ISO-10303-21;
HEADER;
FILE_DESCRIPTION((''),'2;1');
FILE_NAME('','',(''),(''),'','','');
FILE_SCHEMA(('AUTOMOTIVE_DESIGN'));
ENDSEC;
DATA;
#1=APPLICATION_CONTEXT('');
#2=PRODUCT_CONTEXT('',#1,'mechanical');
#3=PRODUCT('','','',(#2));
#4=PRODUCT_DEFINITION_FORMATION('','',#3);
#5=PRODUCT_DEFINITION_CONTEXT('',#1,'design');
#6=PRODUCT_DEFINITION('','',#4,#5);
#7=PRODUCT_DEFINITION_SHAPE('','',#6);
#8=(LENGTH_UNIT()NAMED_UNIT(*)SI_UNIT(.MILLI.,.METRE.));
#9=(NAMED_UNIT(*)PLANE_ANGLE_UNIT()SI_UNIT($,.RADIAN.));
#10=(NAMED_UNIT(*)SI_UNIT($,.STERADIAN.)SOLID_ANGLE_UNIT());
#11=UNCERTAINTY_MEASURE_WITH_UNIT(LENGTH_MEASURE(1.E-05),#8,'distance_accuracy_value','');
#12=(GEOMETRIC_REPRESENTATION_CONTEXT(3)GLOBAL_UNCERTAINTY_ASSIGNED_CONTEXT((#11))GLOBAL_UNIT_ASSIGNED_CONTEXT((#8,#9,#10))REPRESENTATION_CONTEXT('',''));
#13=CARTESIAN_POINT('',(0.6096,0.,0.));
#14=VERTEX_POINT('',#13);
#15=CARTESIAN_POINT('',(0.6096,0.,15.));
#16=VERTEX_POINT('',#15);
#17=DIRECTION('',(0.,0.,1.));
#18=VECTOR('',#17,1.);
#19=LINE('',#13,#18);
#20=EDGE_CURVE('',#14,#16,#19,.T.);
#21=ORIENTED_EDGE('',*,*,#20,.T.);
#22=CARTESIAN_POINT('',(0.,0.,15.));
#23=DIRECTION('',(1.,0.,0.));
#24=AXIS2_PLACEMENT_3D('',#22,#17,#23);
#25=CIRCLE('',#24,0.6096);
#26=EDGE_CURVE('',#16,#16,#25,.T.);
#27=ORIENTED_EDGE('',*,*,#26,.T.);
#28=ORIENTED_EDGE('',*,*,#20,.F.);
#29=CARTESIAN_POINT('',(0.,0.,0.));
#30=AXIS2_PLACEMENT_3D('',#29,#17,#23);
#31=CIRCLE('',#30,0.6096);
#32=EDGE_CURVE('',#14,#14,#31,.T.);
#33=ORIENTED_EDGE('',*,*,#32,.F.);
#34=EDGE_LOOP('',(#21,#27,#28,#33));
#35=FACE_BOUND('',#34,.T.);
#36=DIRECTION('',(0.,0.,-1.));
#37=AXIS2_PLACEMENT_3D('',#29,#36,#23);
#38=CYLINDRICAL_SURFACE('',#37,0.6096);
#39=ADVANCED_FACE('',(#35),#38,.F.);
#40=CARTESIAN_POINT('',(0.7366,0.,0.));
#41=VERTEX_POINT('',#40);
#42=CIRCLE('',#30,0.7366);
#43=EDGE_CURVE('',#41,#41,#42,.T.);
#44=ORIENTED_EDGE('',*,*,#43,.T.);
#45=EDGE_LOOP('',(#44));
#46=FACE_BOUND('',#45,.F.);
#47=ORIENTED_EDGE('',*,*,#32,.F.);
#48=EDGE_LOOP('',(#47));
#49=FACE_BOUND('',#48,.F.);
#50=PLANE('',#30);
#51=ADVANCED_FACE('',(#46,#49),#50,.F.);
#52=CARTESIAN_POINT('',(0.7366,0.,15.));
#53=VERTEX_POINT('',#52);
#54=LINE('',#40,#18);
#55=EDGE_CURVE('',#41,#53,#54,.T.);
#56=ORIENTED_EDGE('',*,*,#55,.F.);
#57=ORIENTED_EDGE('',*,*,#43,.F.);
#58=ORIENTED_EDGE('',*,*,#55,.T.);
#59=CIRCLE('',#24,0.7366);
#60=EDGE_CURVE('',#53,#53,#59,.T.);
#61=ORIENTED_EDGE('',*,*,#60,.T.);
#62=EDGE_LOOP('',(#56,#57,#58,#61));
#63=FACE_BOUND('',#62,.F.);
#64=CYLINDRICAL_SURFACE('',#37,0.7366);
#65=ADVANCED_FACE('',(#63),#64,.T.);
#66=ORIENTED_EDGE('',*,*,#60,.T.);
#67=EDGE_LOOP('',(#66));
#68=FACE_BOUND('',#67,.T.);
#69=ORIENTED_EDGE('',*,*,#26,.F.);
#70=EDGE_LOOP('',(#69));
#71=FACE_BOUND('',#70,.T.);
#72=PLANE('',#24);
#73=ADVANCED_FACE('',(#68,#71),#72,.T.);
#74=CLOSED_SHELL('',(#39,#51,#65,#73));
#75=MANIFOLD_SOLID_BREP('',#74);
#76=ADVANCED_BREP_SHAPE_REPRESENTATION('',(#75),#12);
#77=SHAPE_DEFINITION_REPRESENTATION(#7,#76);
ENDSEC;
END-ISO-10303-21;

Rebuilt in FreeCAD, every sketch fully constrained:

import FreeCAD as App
import Part
import Sketcher

V = App.Vector
Q = App.Units.Quantity

doc = App.newDocument("Part")
body = doc.addObject("PartDesign::Body", "Body")

sketch1 = doc.addObject("Sketcher::SketchObject", "Sketch")
body.addObject(sketch1)
sketch1.AttachmentSupport = (doc.XY_Plane, [""])
sketch1.MapMode = "FlatFace"
sketch1.addGeometry([
    Part.Circle(V(0, 0, 0), V(0, 0, 1), 0.7),
    Part.Circle(V(0, 0, 0), V(0, 0, 1), 0.6),
], False)
sketch1.addConstraint([
    Sketcher.Constraint("Coincident", 0, 3, -1, 1),
    Sketcher.Constraint("Coincident", 1, 3, -1, 1),
    Sketcher.Constraint("Diameter", 0, Q("0.058 in")),
    Sketcher.Constraint("Diameter", 1, Q("0.048 in")),
])
pad1 = doc.addObject("PartDesign::Pad", "Pad")
body.addObject(pad1)
pad1.Profile = sketch1
pad1.Length = 15

doc.recompute()
